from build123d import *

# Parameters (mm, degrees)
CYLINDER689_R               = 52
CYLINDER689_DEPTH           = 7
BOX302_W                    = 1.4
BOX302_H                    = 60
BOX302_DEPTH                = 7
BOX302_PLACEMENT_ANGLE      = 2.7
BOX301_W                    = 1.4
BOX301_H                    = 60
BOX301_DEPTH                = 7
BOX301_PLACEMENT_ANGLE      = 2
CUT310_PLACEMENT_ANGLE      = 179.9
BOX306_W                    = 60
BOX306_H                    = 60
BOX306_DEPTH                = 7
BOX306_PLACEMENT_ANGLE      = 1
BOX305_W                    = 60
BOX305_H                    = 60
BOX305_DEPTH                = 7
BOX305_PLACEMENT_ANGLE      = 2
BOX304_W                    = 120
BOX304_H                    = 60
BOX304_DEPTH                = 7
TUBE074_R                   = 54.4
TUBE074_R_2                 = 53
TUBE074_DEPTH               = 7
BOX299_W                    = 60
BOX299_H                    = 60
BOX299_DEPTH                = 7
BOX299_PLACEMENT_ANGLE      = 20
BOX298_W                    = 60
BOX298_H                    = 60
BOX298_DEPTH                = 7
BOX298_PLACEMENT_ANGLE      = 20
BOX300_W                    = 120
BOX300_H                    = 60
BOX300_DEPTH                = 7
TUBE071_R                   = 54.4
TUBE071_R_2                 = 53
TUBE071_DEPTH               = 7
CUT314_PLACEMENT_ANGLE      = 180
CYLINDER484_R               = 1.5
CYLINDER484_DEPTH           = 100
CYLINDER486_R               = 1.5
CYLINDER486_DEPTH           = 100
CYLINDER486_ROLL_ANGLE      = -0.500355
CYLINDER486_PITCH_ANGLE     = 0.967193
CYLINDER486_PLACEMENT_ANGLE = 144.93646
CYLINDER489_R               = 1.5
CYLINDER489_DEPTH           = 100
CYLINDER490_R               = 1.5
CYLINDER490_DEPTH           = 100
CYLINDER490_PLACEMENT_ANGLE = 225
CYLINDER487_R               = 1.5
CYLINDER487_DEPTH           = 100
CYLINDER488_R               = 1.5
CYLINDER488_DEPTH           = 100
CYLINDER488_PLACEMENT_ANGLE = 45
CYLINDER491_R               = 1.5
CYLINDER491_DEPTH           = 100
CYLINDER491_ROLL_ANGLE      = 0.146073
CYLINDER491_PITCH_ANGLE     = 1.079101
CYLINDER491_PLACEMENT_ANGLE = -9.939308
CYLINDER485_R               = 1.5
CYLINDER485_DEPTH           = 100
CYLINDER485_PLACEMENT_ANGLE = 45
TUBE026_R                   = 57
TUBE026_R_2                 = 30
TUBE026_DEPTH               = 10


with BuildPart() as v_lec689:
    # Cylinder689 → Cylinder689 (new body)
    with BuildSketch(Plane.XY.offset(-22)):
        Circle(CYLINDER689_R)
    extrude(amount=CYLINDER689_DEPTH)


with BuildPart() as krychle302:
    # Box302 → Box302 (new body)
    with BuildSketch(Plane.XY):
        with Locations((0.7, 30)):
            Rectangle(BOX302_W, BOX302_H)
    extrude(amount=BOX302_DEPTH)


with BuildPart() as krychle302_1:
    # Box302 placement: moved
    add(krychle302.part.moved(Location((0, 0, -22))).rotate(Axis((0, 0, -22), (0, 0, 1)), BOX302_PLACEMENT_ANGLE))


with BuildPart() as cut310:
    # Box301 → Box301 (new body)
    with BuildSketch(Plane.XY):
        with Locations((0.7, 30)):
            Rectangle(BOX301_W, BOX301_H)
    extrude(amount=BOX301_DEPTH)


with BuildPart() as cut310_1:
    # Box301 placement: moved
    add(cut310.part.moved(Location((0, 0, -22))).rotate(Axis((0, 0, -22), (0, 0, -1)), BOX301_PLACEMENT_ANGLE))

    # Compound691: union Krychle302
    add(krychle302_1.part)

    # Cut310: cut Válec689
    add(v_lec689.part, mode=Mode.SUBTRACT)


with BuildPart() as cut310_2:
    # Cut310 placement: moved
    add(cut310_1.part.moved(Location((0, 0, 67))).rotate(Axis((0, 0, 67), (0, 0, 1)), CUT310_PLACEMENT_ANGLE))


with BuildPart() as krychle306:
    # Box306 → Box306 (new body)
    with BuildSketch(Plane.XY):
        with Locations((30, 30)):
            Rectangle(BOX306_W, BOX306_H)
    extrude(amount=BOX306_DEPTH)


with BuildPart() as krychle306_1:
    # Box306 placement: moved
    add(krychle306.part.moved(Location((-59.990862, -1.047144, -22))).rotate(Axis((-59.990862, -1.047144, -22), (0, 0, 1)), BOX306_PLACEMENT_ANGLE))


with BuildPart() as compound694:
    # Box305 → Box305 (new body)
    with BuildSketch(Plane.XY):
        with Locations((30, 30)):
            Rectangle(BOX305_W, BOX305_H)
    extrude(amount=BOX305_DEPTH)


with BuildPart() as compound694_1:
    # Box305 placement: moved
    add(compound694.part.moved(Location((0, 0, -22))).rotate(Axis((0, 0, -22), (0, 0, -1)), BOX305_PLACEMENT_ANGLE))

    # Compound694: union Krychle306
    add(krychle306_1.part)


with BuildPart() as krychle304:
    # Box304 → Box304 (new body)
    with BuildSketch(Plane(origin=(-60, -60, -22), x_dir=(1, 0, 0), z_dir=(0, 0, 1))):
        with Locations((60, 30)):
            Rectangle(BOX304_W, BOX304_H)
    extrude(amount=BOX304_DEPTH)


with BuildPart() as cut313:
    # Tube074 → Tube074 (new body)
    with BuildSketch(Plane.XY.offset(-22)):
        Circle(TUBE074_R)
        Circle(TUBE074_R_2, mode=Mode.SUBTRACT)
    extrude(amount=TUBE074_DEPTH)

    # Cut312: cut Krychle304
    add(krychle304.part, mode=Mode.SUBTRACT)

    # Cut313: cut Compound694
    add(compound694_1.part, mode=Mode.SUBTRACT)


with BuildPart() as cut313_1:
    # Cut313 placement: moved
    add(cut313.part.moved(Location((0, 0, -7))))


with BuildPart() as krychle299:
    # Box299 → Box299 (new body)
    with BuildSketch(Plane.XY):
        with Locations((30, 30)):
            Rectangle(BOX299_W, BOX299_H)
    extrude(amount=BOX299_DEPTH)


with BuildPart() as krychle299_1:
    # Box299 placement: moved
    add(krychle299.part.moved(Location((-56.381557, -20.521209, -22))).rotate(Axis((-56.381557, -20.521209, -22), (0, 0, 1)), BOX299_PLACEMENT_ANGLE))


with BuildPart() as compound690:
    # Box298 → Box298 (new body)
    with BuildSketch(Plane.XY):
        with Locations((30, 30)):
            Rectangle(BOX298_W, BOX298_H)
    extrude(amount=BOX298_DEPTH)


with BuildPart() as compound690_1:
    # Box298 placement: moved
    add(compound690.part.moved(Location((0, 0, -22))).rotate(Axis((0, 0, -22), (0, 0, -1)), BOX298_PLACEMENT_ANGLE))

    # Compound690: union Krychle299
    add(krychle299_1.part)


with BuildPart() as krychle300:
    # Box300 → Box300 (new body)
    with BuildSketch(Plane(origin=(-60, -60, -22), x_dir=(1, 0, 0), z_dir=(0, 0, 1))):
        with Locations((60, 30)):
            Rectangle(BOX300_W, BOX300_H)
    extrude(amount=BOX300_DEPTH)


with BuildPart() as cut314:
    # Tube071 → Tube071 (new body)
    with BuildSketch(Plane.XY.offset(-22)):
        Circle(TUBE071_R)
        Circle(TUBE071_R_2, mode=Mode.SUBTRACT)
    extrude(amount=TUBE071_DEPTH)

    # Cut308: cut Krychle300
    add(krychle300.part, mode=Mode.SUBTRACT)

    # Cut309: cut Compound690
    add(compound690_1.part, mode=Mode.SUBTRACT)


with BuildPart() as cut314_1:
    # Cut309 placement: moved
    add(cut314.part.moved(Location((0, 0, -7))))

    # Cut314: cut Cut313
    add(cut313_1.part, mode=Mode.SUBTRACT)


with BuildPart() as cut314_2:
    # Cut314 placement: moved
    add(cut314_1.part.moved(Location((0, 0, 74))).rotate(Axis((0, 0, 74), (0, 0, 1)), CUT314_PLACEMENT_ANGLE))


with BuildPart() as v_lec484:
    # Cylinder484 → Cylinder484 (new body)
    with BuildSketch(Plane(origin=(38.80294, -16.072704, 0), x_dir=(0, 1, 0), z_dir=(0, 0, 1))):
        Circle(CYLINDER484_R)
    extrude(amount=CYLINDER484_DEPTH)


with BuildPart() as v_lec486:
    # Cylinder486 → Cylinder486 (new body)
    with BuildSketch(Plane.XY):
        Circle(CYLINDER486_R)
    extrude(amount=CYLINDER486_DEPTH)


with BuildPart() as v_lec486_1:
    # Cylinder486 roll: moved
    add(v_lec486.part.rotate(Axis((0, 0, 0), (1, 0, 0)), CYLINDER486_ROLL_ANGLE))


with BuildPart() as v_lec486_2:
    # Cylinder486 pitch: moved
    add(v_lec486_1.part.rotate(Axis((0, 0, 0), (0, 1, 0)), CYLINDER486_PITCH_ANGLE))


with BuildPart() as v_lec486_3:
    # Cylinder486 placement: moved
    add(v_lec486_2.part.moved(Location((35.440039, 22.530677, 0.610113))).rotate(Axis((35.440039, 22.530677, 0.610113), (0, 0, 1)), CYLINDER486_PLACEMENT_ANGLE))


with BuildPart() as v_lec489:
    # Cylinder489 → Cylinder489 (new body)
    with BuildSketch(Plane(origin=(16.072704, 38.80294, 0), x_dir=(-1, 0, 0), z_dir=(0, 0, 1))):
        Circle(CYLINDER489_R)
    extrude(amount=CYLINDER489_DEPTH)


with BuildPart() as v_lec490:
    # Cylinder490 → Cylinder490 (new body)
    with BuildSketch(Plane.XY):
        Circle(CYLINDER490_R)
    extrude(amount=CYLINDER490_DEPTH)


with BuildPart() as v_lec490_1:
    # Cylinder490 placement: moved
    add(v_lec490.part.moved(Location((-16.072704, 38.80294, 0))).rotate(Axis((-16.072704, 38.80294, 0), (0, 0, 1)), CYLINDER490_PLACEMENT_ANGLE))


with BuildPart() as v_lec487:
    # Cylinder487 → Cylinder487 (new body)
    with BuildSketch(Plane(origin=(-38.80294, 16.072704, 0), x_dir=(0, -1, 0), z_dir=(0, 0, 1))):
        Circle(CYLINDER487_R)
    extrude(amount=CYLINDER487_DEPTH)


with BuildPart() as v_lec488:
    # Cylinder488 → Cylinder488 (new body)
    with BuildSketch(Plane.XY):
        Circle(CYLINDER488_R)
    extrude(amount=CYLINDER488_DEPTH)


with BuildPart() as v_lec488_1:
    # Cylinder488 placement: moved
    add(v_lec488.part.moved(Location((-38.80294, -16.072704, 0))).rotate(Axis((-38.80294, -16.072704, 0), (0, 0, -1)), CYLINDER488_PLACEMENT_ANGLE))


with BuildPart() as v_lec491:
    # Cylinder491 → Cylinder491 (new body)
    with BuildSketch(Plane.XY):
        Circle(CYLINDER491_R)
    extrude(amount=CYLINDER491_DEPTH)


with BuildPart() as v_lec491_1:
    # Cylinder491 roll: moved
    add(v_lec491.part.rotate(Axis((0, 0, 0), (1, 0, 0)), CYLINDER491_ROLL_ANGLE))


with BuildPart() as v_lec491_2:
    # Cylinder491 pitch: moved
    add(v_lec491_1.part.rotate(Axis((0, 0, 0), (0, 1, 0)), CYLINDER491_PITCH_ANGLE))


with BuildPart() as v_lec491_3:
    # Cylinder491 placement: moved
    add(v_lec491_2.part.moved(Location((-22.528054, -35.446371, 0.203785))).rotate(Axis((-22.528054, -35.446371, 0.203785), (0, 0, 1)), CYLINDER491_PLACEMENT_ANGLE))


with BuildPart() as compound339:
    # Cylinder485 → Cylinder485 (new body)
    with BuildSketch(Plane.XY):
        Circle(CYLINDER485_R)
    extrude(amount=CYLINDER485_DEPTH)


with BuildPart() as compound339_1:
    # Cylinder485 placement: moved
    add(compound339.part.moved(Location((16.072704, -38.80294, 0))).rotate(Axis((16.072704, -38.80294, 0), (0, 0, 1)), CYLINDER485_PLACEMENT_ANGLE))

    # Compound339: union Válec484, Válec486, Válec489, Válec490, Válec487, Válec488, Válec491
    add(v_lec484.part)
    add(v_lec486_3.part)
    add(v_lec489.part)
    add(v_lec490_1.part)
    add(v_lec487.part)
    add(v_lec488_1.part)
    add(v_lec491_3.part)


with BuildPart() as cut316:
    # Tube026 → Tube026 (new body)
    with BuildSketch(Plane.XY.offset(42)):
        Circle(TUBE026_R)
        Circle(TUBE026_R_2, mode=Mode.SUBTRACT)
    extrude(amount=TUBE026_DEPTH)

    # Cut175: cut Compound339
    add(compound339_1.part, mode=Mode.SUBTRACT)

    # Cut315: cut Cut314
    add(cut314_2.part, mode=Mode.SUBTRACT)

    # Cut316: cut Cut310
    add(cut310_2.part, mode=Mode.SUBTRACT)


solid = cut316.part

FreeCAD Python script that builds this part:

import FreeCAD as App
import Part
import Sketcher
from FreeCAD import Vector
Q = App.Units.Quantity


def add_polygon(sketch, points):
    """Adds a closed chain of lines whose ends are joined by coincident constraints."""
    first, n = sketch.GeometryCount, len(points)
    for a, b in zip(points, points[1:] + points[:1]):
        sketch.addGeometry(Part.LineSegment(App.Vector(*a, 0), App.Vector(*b, 0)), False)
    for i in range(n):
        sketch.addConstraint(Sketcher.Constraint("Coincident", first + i, 2, first + (i + 1) % n, 1))

doc = App.newDocument("Part")
params = doc.addObject("Spreadsheet::Sheet", "Params")
for row, (alias, value) in enumerate([
    ("sketch1_diameter", "104 mm"),
    ("pad1_length", "7 mm"),
    ("sketch2_height", "60 mm"),
    ("sketch2_width", "1.4 mm"),
    ("pad2_length", "7 mm"),
    ("sketch3_height", "60 mm"),
    ("sketch3_width", "1.4 mm"),
    ("pad3_length", "7 mm"),
    ("sketch4_width", "60 mm"),
    ("pad4_length", "7 mm"),
    ("sketch5_width", "60 mm"),
    ("pad5_length", "7 mm"),
    ("sketch6_width", "120 mm"),
    ("sketch6_height", "60 mm"),
    ("pad6_length", "7 mm"),
    ("sketch7_diameter", "106 mm"),
    ("sketch7_diameter2", "108.8 mm"),
    ("pad7_length", "7 mm"),
    ("sketch8_width", "60 mm"),
    ("pad8_length", "7 mm"),
    ("sketch9_width", "60 mm"),
    ("pad9_length", "7 mm"),
    ("sketch10_width", "120 mm"),
    ("sketch10_height", "60 mm"),
    ("pad10_length", "7 mm"),
    ("sketch11_diameter", "106 mm"),
    ("sketch11_diameter2", "108.8 mm"),
    ("pad11_length", "7 mm"),
    ("sketch12_diameter", "3 mm"),
    ("pad12_length", "100 mm"),
    ("sketch13_diameter", "3 mm"),
    ("pad13_length", "100 mm"),
    ("sketch14_diameter", "3 mm"),
    ("pad14_length", "100 mm"),
    ("sketch15_diameter", "3 mm"),
    ("pad15_length", "100 mm"),
    ("sketch16_diameter", "3 mm"),
    ("pad16_length", "100 mm"),
    ("sketch17_diameter", "3 mm"),
    ("pad17_length", "100 mm"),
    ("sketch18_diameter", "3 mm"),
    ("pad18_length", "100 mm"),
    ("sketch19_diameter", "3 mm"),
    ("pad19_length", "100 mm"),
    ("sketch20_diameter", "114 mm"),
    ("sketch20_diameter2", "60 mm"),
    ("pad20_length", "10 mm"),
], start=1):
    params.set(f"A{row}", alias)
    params.set(f"B{row}", "=" + value)
    params.setAlias(f"B{row}", alias)

body = doc.addObject("PartDesign::Body", "Body")

# Sketch on XY plane
sketch1 = body.newObject("Sketcher::SketchObject", "Sketch")
sketch1.AttachmentSupport = (doc.getObject("XY_Plane"), [""])
sketch1.MapMode = "FlatFace"
sketch1.AttachmentOffset = App.Placement(Vector(0, 0, -22), App.Rotation())
sketch1.addGeometry(Part.Circle(Vector(0, 0, 0), Vector(0, 0, 1), 52), False)
sketch1.addConstraint(Sketcher.Constraint("Coincident", 0, 3, -1, 1))
sketch1.addConstraint(Sketcher.Constraint("Diameter", 0, Q("104 mm")))
sketch1.setExpression("Constraints[1]", "Params.sketch1_diameter")
pad1 = body.newObject("PartDesign::Pad", "Pad")
pad1.Profile = sketch1
pad1.setExpression("Length", "Params.pad1_length")
body2 = doc.addObject("PartDesign::Body", "Body001")

# Sketch on XY plane
sketch2 = body2.newObject("Sketcher::SketchObject", "Sketch001")
sketch2.AttachmentSupport = (doc.getObject("XY_Plane001"), [""])
sketch2.MapMode = "FlatFace"
add_polygon(sketch2, [(0, 60), (0, 0), (1.4, 0), (1.4, 60)])  # lines 0-3
sketch2.addConstraint(Sketcher.Constraint("Vertical", 0))
sketch2.addConstraint(Sketcher.Constraint("Horizontal", 1))
sketch2.addConstraint(Sketcher.Constraint("Vertical", 2))
sketch2.addConstraint(Sketcher.Constraint("Horizontal", 3))
sketch2.addConstraint(Sketcher.Constraint("Coincident", 0, 2, -1, 1))
sketch2.addConstraint(Sketcher.Constraint("DistanceY", 0, 2, 0, 1, Q("60 mm")))
sketch2.addConstraint(Sketcher.Constraint("DistanceX", 1, 1, 1, 2, Q("1.4 mm")))
sketch2.setExpression("Constraints[9]", "Params.sketch2_height")
sketch2.setExpression("Constraints[10]", "Params.sketch2_width")
pad2 = body2.newObject("PartDesign::Pad", "Pad001")
pad2.Profile = sketch2
pad2.setExpression("Length", "Params.pad2_length")
body3 = doc.addObject("PartDesign::Body", "Body002")
doc.recompute()

body2.Placement = App.Placement(Vector(0, 0, -22), App.Rotation(Vector(0, 0, 1), 2.7))
boolean = body3.newObject("PartDesign::Boolean", "Boolean")
boolean.Type = "Fuse"
boolean.addObjects([body2])
body4 = doc.addObject("PartDesign::Body", "Body003")

# Sketch on XY plane
sketch3 = body4.newObject("Sketcher::SketchObject", "Sketch002")
sketch3.AttachmentSupport = (doc.getObject("XY_Plane003"), [""])
sketch3.MapMode = "FlatFace"
add_polygon(sketch3, [(0, 60), (0, 0), (1.4, 0), (1.4, 60)])  # lines 0-3
sketch3.addConstraint(Sketcher.Constraint("Vertical", 0))
sketch3.addConstraint(Sketcher.Constraint("Horizontal", 1))
sketch3.addConstraint(Sketcher.Constraint("Vertical", 2))
sketch3.addConstraint(Sketcher.Constraint("Horizontal", 3))
sketch3.addConstraint(Sketcher.Constraint("Coincident", 0, 2, -1, 1))
sketch3.addConstraint(Sketcher.Constraint("DistanceY", 0, 2, 0, 1, Q("60 mm")))
sketch3.addConstraint(Sketcher.Constraint("DistanceX", 1, 1, 1, 2, Q("1.4 mm")))
sketch3.setExpression("Constraints[9]", "Params.sketch3_height")
sketch3.setExpression("Constraints[10]", "Params.sketch3_width")
pad3 = body4.newObject("PartDesign::Pad", "Pad002")
pad3.Profile = sketch3
pad3.setExpression("Length", "Params.pad3_length")
body5 = doc.addObject("PartDesign::Body", "Body004")
body5.AllowCompound = True
doc.recompute()

body4.Placement = App.Placement(Vector(0, 0, -22), App.Rotation(Vector(0, 0, -1), 2))
boolean2 = body5.newObject("PartDesign::Boolean", "Boolean001")
boolean2.Type = "Fuse"
boolean2.addObjects([body4])
doc.recompute()

boolean3 = body5.newObject("PartDesign::Boolean", "Boolean002")
boolean3.Type = "Fuse"
boolean3.addObjects([body3])
doc.recompute()

boolean4 = body5.newObject("PartDesign::Boolean", "Boolean003")
boolean4.Type = "Cut"
boolean4.addObjects([body])
body6 = doc.addObject("PartDesign::Body", "Body005")
body6.AllowCompound = True
doc.recompute()

body5.Placement = App.Placement(Vector(0, 0, 67), App.Rotation(Vector(0, 0, 1), 179.9))
boolean5 = body6.newObject("PartDesign::Boolean", "Boolean004")
boolean5.Type = "Fuse"
boolean5.addObjects([body5])
body7 = doc.addObject("PartDesign::Body", "Body006")

# Sketch on XY plane
sketch4 = body7.newObject("Sketcher::SketchObject", "Sketch003")
sketch4.AttachmentSupport = (doc.getObject("XY_Plane006"), [""])
sketch4.MapMode = "FlatFace"
add_polygon(sketch4, [(0, 60), (0, 0), (60, 0), (60, 60)])  # lines 0-3
sketch4.addConstraint(Sketcher.Constraint("Vertical", 0))
sketch4.addConstraint(Sketcher.Constraint("Horizontal", 1))
sketch4.addConstraint(Sketcher.Constraint("Vertical", 2))
sketch4.addConstraint(Sketcher.Constraint("Horizontal", 3))
sketch4.addConstraint(Sketcher.Constraint("Coincident", 0, 2, -1, 1))
sketch4.addConstraint(Sketcher.Constraint("Equal", 3, 0))
sketch4.addConstraint(Sketcher.Constraint("DistanceX", 1, 1, 1, 2, Q("60 mm")))
sketch4.setExpression("Constraints[10]", "Params.sketch4_width")
pad4 = body7.newObject("PartDesign::Pad", "Pad003")
pad4.Profile = sketch4
pad4.setExpression("Length", "Params.pad4_length")
body8 = doc.addObject("PartDesign::Body", "Body007")
doc.recompute()

body7.Placement = App.Placement(Vector(-59.990862, -1.047144, -22), App.Rotation(Vector(0, 0, 1), 1))
boolean6 = body8.newObject("PartDesign::Boolean", "Boolean005")
boolean6.Type = "Fuse"
boolean6.addObjects([body7])
body9 = doc.addObject("PartDesign::Body", "Body008")

# Sketch on XY plane
sketch5 = body9.newObject("Sketcher::SketchObject", "Sketch004")
sketch5.AttachmentSupport = (doc.getObject("XY_Plane008"), [""])
sketch5.MapMode = "FlatFace"
add_polygon(sketch5, [(0, 60), (0, 0), (60, 0), (60, 60)])  # lines 0-3
sketch5.addConstraint(Sketcher.Constraint("Vertical", 0))
sketch5.addConstraint(Sketcher.Constraint("Horizontal", 1))
sketch5.addConstraint(Sketcher.Constraint("Vertical", 2))
sketch5.addConstraint(Sketcher.Constraint("Horizontal", 3))
sketch5.addConstraint(Sketcher.Constraint("Coincident", 0, 2, -1, 1))
sketch5.addConstraint(Sketcher.Constraint("Equal", 3, 0))
sketch5.addConstraint(Sketcher.Constraint("DistanceX", 1, 1, 1, 2, Q("60 mm")))
sketch5.setExpression("Constraints[10]", "Params.sketch5_width")
pad5 = body9.newObject("PartDesign::Pad", "Pad004")
pad5.Profile = sketch5
pad5.setExpression("Length", "Params.pad5_length")
body10 = doc.addObject("PartDesign::Body", "Body009")
body10.AllowCompound = True
doc.recompute()

body9.Placement = App.Placement(Vector(0, 0, -22), App.Rotation(Vector(0, 0, -1), 2))
boolean7 = body10.newObject("PartDesign::Boolean", "Boolean006")
boolean7.Type = "Fuse"
boolean7.addObjects([body9])
doc.recompute()

boolean8 = body10.newObject("PartDesign::Boolean", "Boolean007")
boolean8.Type = "Fuse"
boolean8.addObjects([body8])
body11 = doc.addObject("PartDesign::Body", "Body010")

# Sketch on XY plane
sketch6 = body11.newObject("Sketcher::SketchObject", "Sketch005")
sketch6.AttachmentSupport = (doc.getObject("XY_Plane010"), [""])
sketch6.MapMode = "FlatFace"
sketch6.AttachmentOffset = App.Placement(Vector(0, 0, -22), App.Rotation())
add_polygon(sketch6, [(-60, 0), (-60, -60), (60, -60), (60, 0)])  # lines 0-3
sketch6.addConstraint(Sketcher.Constraint("Vertical", 0))
sketch6.addConstraint(Sketcher.Constraint("Horizontal", 1))
sketch6.addConstraint(Sketcher.Constraint("Vertical", 2))
sketch6.addConstraint(Sketcher.Constraint("Horizontal", 3))
sketch6.addConstraint(Sketcher.Constraint("Symmetric", 2, 2, 3, 2, -1, 1))
sketch6.addConstraint(Sketcher.Constraint("DistanceX", 1, 1, 1, 2, Q("120 mm")))
sketch6.addConstraint(Sketcher.Constraint("DistanceY", 0, 2, 0, 1, Q("60 mm")))
sketch6.setExpression("Constraints[9]", "Params.sketch6_width")
sketch6.setExpression("Constraints[10]", "Params.sketch6_height")
pad6 = body11.newObject("PartDesign::Pad", "Pad005")
pad6.Profile = sketch6
pad6.setExpression("Length", "Params.pad6_length")
body12 = doc.addObject("PartDesign::Body", "Body011")

# Sketch on XY plane
sketch7 = body12.newObject("Sketcher::SketchObject", "Sketch006")
sketch7.AttachmentSupport = (doc.getObject("XY_Plane011"), [""])
sketch7.MapMode = "FlatFace"
sketch7.AttachmentOffset = App.Placement(Vector(0, 0, -22), App.Rotation())
sketch7.addGeometry(Part.Circle(Vector(0, 0, 0), Vector(0, 0, 1), 54.4), False)
sketch7.addGeometry(Part.Circle(Vector(0, 0, 0), Vector(0, 0, 1), 53), False)
sketch7.addConstraint(Sketcher.Constraint("Coincident", 0, 3, -1, 1))
sketch7.addConstraint(Sketcher.Constraint("Coincident", 1, 3, -1, 1))
sketch7.addConstraint(Sketcher.Constraint("Diameter", 1, Q("106 mm")))
sketch7.addConstraint(Sketcher.Constraint("Diameter", 0, Q("108.8 mm")))
sketch7.setExpression("Constraints[2]", "Params.sketch7_diameter")
sketch7.setExpression("Constraints[3]", "Params.sketch7_diameter2")
pad7 = body12.newObject("PartDesign::Pad", "Pad006")
pad7.Profile = sketch7
pad7.setExpression("Length", "Params.pad7_length")
doc.recompute()

boolean9 = body12.newObject("PartDesign::Boolean", "Boolean008")
boolean9.Type = "Cut"
boolean9.addObjects([body11])
doc.recompute()

boolean10 = body12.newObject("PartDesign::Boolean", "Boolean009")
boolean10.Type = "Cut"
boolean10.addObjects([body10])
body13 = doc.addObject("PartDesign::Body", "Body012")
doc.recompute()

body12.Placement = App.Placement(Vector(0, 0, -7), App.Rotation(Vector(0, 0, 1), 0))
boolean11 = body13.newObject("PartDesign::Boolean", "Boolean010")
boolean11.Type = "Fuse"
boolean11.addObjects([body12])
body14 = doc.addObject("PartDesign::Body", "Body013")

# Sketch on XY plane
sketch8 = body14.newObject("Sketcher::SketchObject", "Sketch007")
sketch8.AttachmentSupport = (doc.getObject("XY_Plane013"), [""])
sketch8.MapMode = "FlatFace"
add_polygon(sketch8, [(0, 60), (0, 0), (60, 0), (60, 60)])  # lines 0-3
sketch8.addConstraint(Sketcher.Constraint("Vertical", 0))
sketch8.addConstraint(Sketcher.Constraint("Horizontal", 1))
sketch8.addConstraint(Sketcher.Constraint("Vertical", 2))
sketch8.addConstraint(Sketcher.Constraint("Horizontal", 3))
sketch8.addConstraint(Sketcher.Constraint("Coincident", 0, 2, -1, 1))
sketch8.addConstraint(Sketcher.Constraint("Equal", 3, 0))
sketch8.addConstraint(Sketcher.Constraint("DistanceX", 1, 1, 1, 2, Q("60 mm")))
sketch8.setExpression("Constraints[10]", "Params.sketch8_width")
pad8 = body14.newObject("PartDesign::Pad", "Pad007")
pad8.Profile = sketch8
pad8.setExpression("Length", "Params.pad8_length")
body15 = doc.addObject("PartDesign::Body", "Body014")
doc.recompute()

body14.Placement = App.Placement(Vector(-56.381557, -20.521209, -22), App.Rotation(Vector(0, 0, 1), 20))
boolean12 = body15.newObject("PartDesign::Boolean", "Boolean011")
boolean12.Type = "Fuse"
boolean12.addObjects([body14])
body16 = doc.addObject("PartDesign::Body", "Body015")

# Sketch on XY plane
sketch9 = body16.newObject("Sketcher::SketchObject", "Sketch008")
sketch9.AttachmentSupport = (doc.getObject("XY_Plane015"), [""])
sketch9.MapMode = "FlatFace"
add_polygon(sketch9, [(0, 60), (0, 0), (60, 0), (60, 60)])  # lines 0-3
sketch9.addConstraint(Sketcher.Constraint("Vertical", 0))
sketch9.addConstraint(Sketcher.Constraint("Horizontal", 1))
sketch9.addConstraint(Sketcher.Constraint("Vertical", 2))
sketch9.addConstraint(Sketcher.Constraint("Horizontal", 3))
sketch9.addConstraint(Sketcher.Constraint("Coincident", 0, 2, -1, 1))
sketch9.addConstraint(Sketcher.Constraint("Equal", 3, 0))
sketch9.addConstraint(Sketcher.Constraint("DistanceX", 1, 1, 1, 2, Q("60 mm")))
sketch9.setExpression("Constraints[10]", "Params.sketch9_width")
pad9 = body16.newObject("PartDesign::Pad", "Pad008")
pad9.Profile = sketch9
pad9.setExpression("Length", "Params.pad9_length")
body17 = doc.addObject("PartDesign::Body", "Body016")
body17.AllowCompound = True
doc.recompute()

body16.Placement = App.Placement(Vector(0, 0, -22), App.Rotation(Vector(0, 0, -1), 20))
boolean13 = body17.newObject("PartDesign::Boolean", "Boolean012")
boolean13.Type = "Fuse"
boolean13.addObjects([body16])
doc.recompute()

boolean14 = body17.newObject("PartDesign::Boolean", "Boolean013")
boolean14.Type = "Fuse"
boolean14.addObjects([body15])
body18 = doc.addObject("PartDesign::Body", "Body017")

# Sketch on XY plane
sketch10 = body18.newObject("Sketcher::SketchObject", "Sketch009")
sketch10.AttachmentSupport = (doc.getObject("XY_Plane017"), [""])
sketch10.MapMode = "FlatFace"
sketch10.AttachmentOffset = App.Placement(Vector(0, 0, -22), App.Rotation())
add_polygon(sketch10, [(-60, 0), (-60, -60), (60, -60), (60, 0)])  # lines 0-3
sketch10.addConstraint(Sketcher.Constraint("Vertical", 0))
sketch10.addConstraint(Sketcher.Constraint("Horizontal", 1))
sketch10.addConstraint(Sketcher.Constraint("Vertical", 2))
sketch10.addConstraint(Sketcher.Constraint("Horizontal", 3))
sketch10.addConstraint(Sketcher.Constraint("Symmetric", 2, 2, 3, 2, -1, 1))
sketch10.addConstraint(Sketcher.Constraint("DistanceX", 1, 1, 1, 2, Q("120 mm")))
sketch10.addConstraint(Sketcher.Constraint("DistanceY", 0, 2, 0, 1, Q("60 mm")))
sketch10.setExpression("Constraints[9]", "Params.sketch10_width")
sketch10.setExpression("Constraints[10]", "Params.sketch10_height")
pad10 = body18.newObject("PartDesign::Pad", "Pad009")
pad10.Profile = sketch10
pad10.setExpression("Length", "Params.pad10_length")
body19 = doc.addObject("PartDesign::Body", "Body018")

# Sketch on XY plane
sketch11 = body19.newObject("Sketcher::SketchObject", "Sketch010")
sketch11.AttachmentSupport = (doc.getObject("XY_Plane018"), [""])
sketch11.MapMode = "FlatFace"
sketch11.AttachmentOffset = App.Placement(Vector(0, 0, -22), App.Rotation())
sketch11.addGeometry(Part.Circle(Vector(0, 0, 0), Vector(0, 0, 1), 54.4), False)
sketch11.addGeometry(Part.Circle(Vector(0, 0, 0), Vector(0, 0, 1), 53), False)
sketch11.addConstraint(Sketcher.Constraint("Coincident", 0, 3, -1, 1))
sketch11.addConstraint(Sketcher.Constraint("Coincident", 1, 3, -1, 1))
sketch11.addConstraint(Sketcher.Constraint("Diameter", 1, Q("106 mm")))
sketch11.addConstraint(Sketcher.Constraint("Diameter", 0, Q("108.8 mm")))
sketch11.setExpression("Constraints[2]", "Params.sketch11_diameter")
sketch11.setExpression("Constraints[3]", "Params.sketch11_diameter2")
pad11 = body19.newObject("PartDesign::Pad", "Pad010")
pad11.Profile = sketch11
pad11.setExpression("Length", "Params.pad11_length")
doc.recompute()

boolean15 = body19.newObject("PartDesign::Boolean", "Boolean014")
boolean15.Type = "Cut"
boolean15.addObjects([body18])
doc.recompute()

boolean16 = body19.newObject("PartDesign::Boolean", "Boolean015")
boolean16.Type = "Cut"
boolean16.addObjects([body17])
body20 = doc.addObject("PartDesign::Body", "Body019")
body20.AllowCompound = True
doc.recompute()

body19.Placement = App.Placement(Vector(0, 0, -7), App.Rotation(Vector(0, 0, 1), 0))
boolean17 = body20.newObject("PartDesign::Boolean", "Boolean016")
boolean17.Type = "Fuse"
boolean17.addObjects([body19])
doc.recompute()

boolean18 = body20.newObject("PartDesign::Boolean", "Boolean017")
boolean18.Type = "Cut"
boolean18.addObjects([body13])
body21 = doc.addObject("PartDesign::Body", "Body020")
body21.AllowCompound = True
doc.recompute()

body20.Placement = App.Placement(Vector(0, 0, 74), App.Rotation(Vector(0, 0, 1), 180))
boolean19 = body21.newObject("PartDesign::Boolean", "Boolean018")
boolean19.Type = "Fuse"
boolean19.addObjects([body20])
body22 = doc.addObject("PartDesign::Body", "Body021")

# Sketch on XY plane
sketch12 = body22.newObject("Sketcher::SketchObject", "Sketch011")
sketch12.AttachmentSupport = (doc.getObject("XY_Plane021"), [""])
sketch12.MapMode = "FlatFace"
sketch12.addGeometry(Part.Circle(Vector(38.80294, -16.072704, 0), Vector(0, 0, 1), 1.5), False)
sketch12.addConstraint(Sketcher.Constraint("Diameter", 0, Q("3 mm")))
sketch12.addConstraint(Sketcher.Constraint("DistanceX", -1, 1, 0, 3, Q("38.80294 mm")))
sketch12.addConstraint(Sketcher.Constraint("DistanceY", 0, 3, -1, 1, Q("16.072704 mm")))
sketch12.setExpression("Constraints[0]", "Params.sketch12_diameter")
pad12 = body22.newObject("PartDesign::Pad", "Pad011")
pad12.Profile = sketch12
pad12.setExpression("Length", "Params.pad12_length")
body23 = doc.addObject("PartDesign::Body", "Body022")

# Sketch on XY plane
sketch13 = body23.newObject("Sketcher::SketchObject", "Sketch012")
sketch13.AttachmentSupport = (doc.getObject("XY_Plane022"), [""])
sketch13.MapMode = "FlatFace"
sketch13.addGeometry(Part.Circle(Vector(0, 0, 0), Vector(0, 0, 1), 1.5), False)
sketch13.addConstraint(Sketcher.Constraint("Coincident", 0, 3, -1, 1))
sketch13.addConstraint(Sketcher.Constraint("Diameter", 0, Q("3 mm")))
sketch13.setExpression("Constraints[1]", "Params.sketch13_diameter")
pad13 = body23.newObject("PartDesign::Pad", "Pad012")
pad13.Profile = sketch13
pad13.setExpression("Length", "Params.pad13_length")
body24 = doc.addObject("PartDesign::Body", "Body023")
doc.recompute()

body23.Placement = App.Placement(Vector(0, 0, 0), App.Rotation(Vector(1, 0, 0), 359.499645))
boolean20 = body24.newObject("PartDesign::Boolean", "Boolean019")
boolean20.Type = "Fuse"
boolean20.addObjects([body23])
body25 = doc.addObject("PartDesign::Body", "Body024")
doc.recompute()

body24.Placement = App.Placement(Vector(0, 0, 0), App.Rotation(Vector(0, 1, 0), 0.967193))
boolean21 = body25.newObject("PartDesign::Boolean", "Boolean020")
boolean21.Type = "Fuse"
boolean21.addObjects([body24])
body26 = doc.addObject("PartDesign::Body", "Body025")
doc.recompute()

body25.Placement = App.Placement(Vector(35.440039, 22.530677, 0.610113), App.Rotation(Vector(0, 0, 1), 144.93646))
boolean22 = body26.newObject("PartDesign::Boolean", "Boolean021")
boolean22.Type = "Fuse"
boolean22.addObjects([body25])
body27 = doc.addObject("PartDesign::Body", "Body026")

# Sketch on XY plane
sketch14 = body27.newObject("Sketcher::SketchObject", "Sketch013")
sketch14.AttachmentSupport = (doc.getObject("XY_Plane026"), [""])
sketch14.MapMode = "FlatFace"
sketch14.addGeometry(Part.Circle(Vector(16.072704, 38.80294, 0), Vector(0, 0, 1), 1.5), False)
sketch14.addConstraint(Sketcher.Constraint("Diameter", 0, Q("3 mm")))
sketch14.addConstraint(Sketcher.Constraint("DistanceY", -1, 1, 0, 3, Q("38.80294 mm")))
sketch14.addConstraint(Sketcher.Constraint("DistanceX", -1, 1, 0, 3, Q("16.072704 mm")))
sketch14.setExpression("Constraints[0]", "Params.sketch14_diameter")
pad14 = body27.newObject("PartDesign::Pad", "Pad013")
pad14.Profile = sketch14
pad14.setExpression("Length", "Params.pad14_length")
body28 = doc.addObject("PartDesign::Body", "Body027")

# Sketch on XY plane
sketch15 = body28.newObject("Sketcher::SketchObject", "Sketch014")
sketch15.AttachmentSupport = (doc.getObject("XY_Plane027"), [""])
sketch15.MapMode = "FlatFace"
sketch15.addGeometry(Part.Circle(Vector(0, 0, 0), Vector(0, 0, 1), 1.5), False)
sketch15.addConstraint(Sketcher.Constraint("Coincident", 0, 3, -1, 1))
sketch15.addConstraint(Sketcher.Constraint("Diameter", 0, Q("3 mm")))
sketch15.setExpression("Constraints[1]", "Params.sketch15_diameter")
pad15 = body28.newObject("PartDesign::Pad", "Pad014")
pad15.Profile = sketch15
pad15.setExpression("Length", "Params.pad15_length")
body29 = doc.addObject("PartDesign::Body", "Body028")
doc.recompute()

body28.Placement = App.Placement(Vector(-16.072704, 38.80294, 0), App.Rotation(Vector(0, 0, 1), 225))
boolean23 = body29.newObject("PartDesign::Boolean", "Boolean022")
boolean23.Type = "Fuse"
boolean23.addObjects([body28])
body30 = doc.addObject("PartDesign::Body", "Body029")

# Sketch on XY plane
sketch16 = body30.newObject("Sketcher::SketchObject", "Sketch015")
sketch16.AttachmentSupport = (doc.getObject("XY_Plane029"), [""])
sketch16.MapMode = "FlatFace"
sketch16.addGeometry(Part.Circle(Vector(-38.80294, 16.072704, 0), Vector(0, 0, 1), 1.5), False)
sketch16.addConstraint(Sketcher.Constraint("Diameter", 0, Q("3 mm")))
sketch16.addConstraint(Sketcher.Constraint("DistanceX", 0, 3, -1, 1, Q("38.80294 mm")))
sketch16.addConstraint(Sketcher.Constraint("DistanceY", -1, 1, 0, 3, Q("16.072704 mm")))
sketch16.setExpression("Constraints[0]", "Params.sketch16_diameter")
pad16 = body30.newObject("PartDesign::Pad", "Pad015")
pad16.Profile = sketch16
pad16.setExpression("Length", "Params.pad16_length")
body31 = doc.addObject("PartDesign::Body", "Body030")

# Sketch on XY plane
sketch17 = body31.newObject("Sketcher::SketchObject", "Sketch016")
sketch17.AttachmentSupport = (doc.getObject("XY_Plane030"), [""])
sketch17.MapMode = "FlatFace"
sketch17.addGeometry(Part.Circle(Vector(0, 0, 0), Vector(0, 0, 1), 1.5), False)
sketch17.addConstraint(Sketcher.Constraint("Coincident", 0, 3, -1, 1))
sketch17.addConstraint(Sketcher.Constraint("Diameter", 0, Q("3 mm")))
sketch17.setExpression("Constraints[1]", "Params.sketch17_diameter")
pad17 = body31.newObject("PartDesign::Pad", "Pad016")
pad17.Profile = sketch17
pad17.setExpression("Length", "Params.pad17_length")
body32 = doc.addObject("PartDesign::Body", "Body031")
doc.recompute()

body31.Placement = App.Placement(Vector(-38.80294, -16.072704, 0), App.Rotation(Vector(0, 0, -1), 45))
boolean24 = body32.newObject("PartDesign::Boolean", "Boolean023")
boolean24.Type = "Fuse"
boolean24.addObjects([body31])
body33 = doc.addObject("PartDesign::Body", "Body032")

# Sketch on XY plane
sketch18 = body33.newObject("Sketcher::SketchObject", "Sketch017")
sketch18.AttachmentSupport = (doc.getObject("XY_Plane032"), [""])
sketch18.MapMode = "FlatFace"
sketch18.addGeometry(Part.Circle(Vector(0, 0, 0), Vector(0, 0, 1), 1.5), False)
sketch18.addConstraint(Sketcher.Constraint("Coincident", 0, 3, -1, 1))
sketch18.addConstraint(Sketcher.Constraint("Diameter", 0, Q("3 mm")))
sketch18.setExpression("Constraints[1]", "Params.sketch18_diameter")
pad18 = body33.newObject("PartDesign::Pad", "Pad017")
pad18.Profile = sketch18
pad18.setExpression("Length", "Params.pad18_length")
body34 = doc.addObject("PartDesign::Body", "Body033")
doc.recompute()

body33.Placement = App.Placement(Vector(0, 0, 0), App.Rotation(Vector(1, 0, 0), 0.146073))
boolean25 = body34.newObject("PartDesign::Boolean", "Boolean024")
boolean25.Type = "Fuse"
boolean25.addObjects([body33])
body35 = doc.addObject("PartDesign::Body", "Body034")
doc.recompute()

body34.Placement = App.Placement(Vector(0, 0, 0), App.Rotation(Vector(0, 1, 0), 1.079101))
boolean26 = body35.newObject("PartDesign::Boolean", "Boolean025")
boolean26.Type = "Fuse"
boolean26.addObjects([body34])
body36 = doc.addObject("PartDesign::Body", "Body035")
doc.recompute()

body35.Placement = App.Placement(Vector(-22.528054, -35.446371, 0.203785), App.Rotation(Vector(0, 0, 1), 350.060692))
boolean27 = body36.newObject("PartDesign::Boolean", "Boolean026")
boolean27.Type = "Fuse"
boolean27.addObjects([body35])
body37 = doc.addObject("PartDesign::Body", "Body036")

# Sketch on XY plane
sketch19 = body37.newObject("Sketcher::SketchObject", "Sketch018")
sketch19.AttachmentSupport = (doc.getObject("XY_Plane036"), [""])
sketch19.MapMode = "FlatFace"
sketch19.addGeometry(Part.Circle(Vector(0, 0, 0), Vector(0, 0, 1), 1.5), False)
sketch19.addConstraint(Sketcher.Constraint("Coincident", 0, 3, -1, 1))
sketch19.addConstraint(Sketcher.Constraint("Diameter", 0, Q("3 mm")))
sketch19.setExpression("Constraints[1]", "Params.sketch19_diameter")
pad19 = body37.newObject("PartDesign::Pad", "Pad018")
pad19.Profile = sketch19
pad19.setExpression("Length", "Params.pad19_length")
body38 = doc.addObject("PartDesign::Body", "Body037")
body38.AllowCompound = True
doc.recompute()

body37.Placement = App.Placement(Vector(16.072704, -38.80294, 0), App.Rotation(Vector(0, 0, 1), 45))
boolean28 = body38.newObject("PartDesign::Boolean", "Boolean027")
boolean28.Type = "Fuse"
boolean28.addObjects([body37])
doc.recompute()

boolean29 = body38.newObject("PartDesign::Boolean", "Boolean028")
boolean29.Type = "Fuse"
boolean29.addObjects([body22])
doc.recompute()

boolean30 = body38.newObject("PartDesign::Boolean", "Boolean029")
boolean30.Type = "Fuse"
boolean30.addObjects([body26])
doc.recompute()

boolean31 = body38.newObject("PartDesign::Boolean", "Boolean030")
boolean31.Type = "Fuse"
boolean31.addObjects([body27])
doc.recompute()

boolean32 = body38.newObject("PartDesign::Boolean", "Boolean031")
boolean32.Type = "Fuse"
boolean32.addObjects([body29])
doc.recompute()

boolean33 = body38.newObject("PartDesign::Boolean", "Boolean032")
boolean33.Type = "Fuse"
boolean33.addObjects([body30])
doc.recompute()

boolean34 = body38.newObject("PartDesign::Boolean", "Boolean033")
boolean34.Type = "Fuse"
boolean34.addObjects([body32])
doc.recompute()

boolean35 = body38.newObject("PartDesign::Boolean", "Boolean034")
boolean35.Type = "Fuse"
boolean35.addObjects([body36])
body39 = doc.addObject("PartDesign::Body", "Body038")

# Sketch on XY plane
sketch20 = body39.newObject("Sketcher::SketchObject", "Sketch019")
sketch20.AttachmentSupport = (doc.getObject("XY_Plane038"), [""])
sketch20.MapMode = "FlatFace"
sketch20.AttachmentOffset = App.Placement(Vector(0, 0, 42), App.Rotation())
sketch20.addGeometry(Part.Circle(Vector(0, 0, 0), Vector(0, 0, 1), 57), False)
sketch20.addGeometry(Part.Circle(Vector(0, 0, 0), Vector(0, 0, 1), 30), False)
sketch20.addConstraint(Sketcher.Constraint("Coincident", 0, 3, -1, 1))
sketch20.addConstraint(Sketcher.Constraint("Coincident", 1, 3, -1, 1))
sketch20.addConstraint(Sketcher.Constraint("Diameter", 0, Q("114 mm")))
sketch20.addConstraint(Sketcher.Constraint("Diameter", 1, Q("60 mm")))
sketch20.setExpression("Constraints[2]", "Params.sketch20_diameter")
sketch20.setExpression("Constraints[3]", "Params.sketch20_diameter2")
pad20 = body39.newObject("PartDesign::Pad", "Pad019")
pad20.Profile = sketch20
pad20.setExpression("Length", "Params.pad20_length")
doc.recompute()

boolean36 = body39.newObject("PartDesign::Boolean", "Boolean035")
boolean36.Type = "Cut"
boolean36.addObjects([body38])
doc.recompute()

boolean37 = body39.newObject("PartDesign::Boolean", "Boolean036")
boolean37.Type = "Cut"
boolean37.addObjects([body21])
doc.recompute()

boolean38 = body39.newObject("PartDesign::Boolean", "Boolean037")
boolean38.Type = "Cut"
boolean38.addObjects([body6])

doc.recompute()
